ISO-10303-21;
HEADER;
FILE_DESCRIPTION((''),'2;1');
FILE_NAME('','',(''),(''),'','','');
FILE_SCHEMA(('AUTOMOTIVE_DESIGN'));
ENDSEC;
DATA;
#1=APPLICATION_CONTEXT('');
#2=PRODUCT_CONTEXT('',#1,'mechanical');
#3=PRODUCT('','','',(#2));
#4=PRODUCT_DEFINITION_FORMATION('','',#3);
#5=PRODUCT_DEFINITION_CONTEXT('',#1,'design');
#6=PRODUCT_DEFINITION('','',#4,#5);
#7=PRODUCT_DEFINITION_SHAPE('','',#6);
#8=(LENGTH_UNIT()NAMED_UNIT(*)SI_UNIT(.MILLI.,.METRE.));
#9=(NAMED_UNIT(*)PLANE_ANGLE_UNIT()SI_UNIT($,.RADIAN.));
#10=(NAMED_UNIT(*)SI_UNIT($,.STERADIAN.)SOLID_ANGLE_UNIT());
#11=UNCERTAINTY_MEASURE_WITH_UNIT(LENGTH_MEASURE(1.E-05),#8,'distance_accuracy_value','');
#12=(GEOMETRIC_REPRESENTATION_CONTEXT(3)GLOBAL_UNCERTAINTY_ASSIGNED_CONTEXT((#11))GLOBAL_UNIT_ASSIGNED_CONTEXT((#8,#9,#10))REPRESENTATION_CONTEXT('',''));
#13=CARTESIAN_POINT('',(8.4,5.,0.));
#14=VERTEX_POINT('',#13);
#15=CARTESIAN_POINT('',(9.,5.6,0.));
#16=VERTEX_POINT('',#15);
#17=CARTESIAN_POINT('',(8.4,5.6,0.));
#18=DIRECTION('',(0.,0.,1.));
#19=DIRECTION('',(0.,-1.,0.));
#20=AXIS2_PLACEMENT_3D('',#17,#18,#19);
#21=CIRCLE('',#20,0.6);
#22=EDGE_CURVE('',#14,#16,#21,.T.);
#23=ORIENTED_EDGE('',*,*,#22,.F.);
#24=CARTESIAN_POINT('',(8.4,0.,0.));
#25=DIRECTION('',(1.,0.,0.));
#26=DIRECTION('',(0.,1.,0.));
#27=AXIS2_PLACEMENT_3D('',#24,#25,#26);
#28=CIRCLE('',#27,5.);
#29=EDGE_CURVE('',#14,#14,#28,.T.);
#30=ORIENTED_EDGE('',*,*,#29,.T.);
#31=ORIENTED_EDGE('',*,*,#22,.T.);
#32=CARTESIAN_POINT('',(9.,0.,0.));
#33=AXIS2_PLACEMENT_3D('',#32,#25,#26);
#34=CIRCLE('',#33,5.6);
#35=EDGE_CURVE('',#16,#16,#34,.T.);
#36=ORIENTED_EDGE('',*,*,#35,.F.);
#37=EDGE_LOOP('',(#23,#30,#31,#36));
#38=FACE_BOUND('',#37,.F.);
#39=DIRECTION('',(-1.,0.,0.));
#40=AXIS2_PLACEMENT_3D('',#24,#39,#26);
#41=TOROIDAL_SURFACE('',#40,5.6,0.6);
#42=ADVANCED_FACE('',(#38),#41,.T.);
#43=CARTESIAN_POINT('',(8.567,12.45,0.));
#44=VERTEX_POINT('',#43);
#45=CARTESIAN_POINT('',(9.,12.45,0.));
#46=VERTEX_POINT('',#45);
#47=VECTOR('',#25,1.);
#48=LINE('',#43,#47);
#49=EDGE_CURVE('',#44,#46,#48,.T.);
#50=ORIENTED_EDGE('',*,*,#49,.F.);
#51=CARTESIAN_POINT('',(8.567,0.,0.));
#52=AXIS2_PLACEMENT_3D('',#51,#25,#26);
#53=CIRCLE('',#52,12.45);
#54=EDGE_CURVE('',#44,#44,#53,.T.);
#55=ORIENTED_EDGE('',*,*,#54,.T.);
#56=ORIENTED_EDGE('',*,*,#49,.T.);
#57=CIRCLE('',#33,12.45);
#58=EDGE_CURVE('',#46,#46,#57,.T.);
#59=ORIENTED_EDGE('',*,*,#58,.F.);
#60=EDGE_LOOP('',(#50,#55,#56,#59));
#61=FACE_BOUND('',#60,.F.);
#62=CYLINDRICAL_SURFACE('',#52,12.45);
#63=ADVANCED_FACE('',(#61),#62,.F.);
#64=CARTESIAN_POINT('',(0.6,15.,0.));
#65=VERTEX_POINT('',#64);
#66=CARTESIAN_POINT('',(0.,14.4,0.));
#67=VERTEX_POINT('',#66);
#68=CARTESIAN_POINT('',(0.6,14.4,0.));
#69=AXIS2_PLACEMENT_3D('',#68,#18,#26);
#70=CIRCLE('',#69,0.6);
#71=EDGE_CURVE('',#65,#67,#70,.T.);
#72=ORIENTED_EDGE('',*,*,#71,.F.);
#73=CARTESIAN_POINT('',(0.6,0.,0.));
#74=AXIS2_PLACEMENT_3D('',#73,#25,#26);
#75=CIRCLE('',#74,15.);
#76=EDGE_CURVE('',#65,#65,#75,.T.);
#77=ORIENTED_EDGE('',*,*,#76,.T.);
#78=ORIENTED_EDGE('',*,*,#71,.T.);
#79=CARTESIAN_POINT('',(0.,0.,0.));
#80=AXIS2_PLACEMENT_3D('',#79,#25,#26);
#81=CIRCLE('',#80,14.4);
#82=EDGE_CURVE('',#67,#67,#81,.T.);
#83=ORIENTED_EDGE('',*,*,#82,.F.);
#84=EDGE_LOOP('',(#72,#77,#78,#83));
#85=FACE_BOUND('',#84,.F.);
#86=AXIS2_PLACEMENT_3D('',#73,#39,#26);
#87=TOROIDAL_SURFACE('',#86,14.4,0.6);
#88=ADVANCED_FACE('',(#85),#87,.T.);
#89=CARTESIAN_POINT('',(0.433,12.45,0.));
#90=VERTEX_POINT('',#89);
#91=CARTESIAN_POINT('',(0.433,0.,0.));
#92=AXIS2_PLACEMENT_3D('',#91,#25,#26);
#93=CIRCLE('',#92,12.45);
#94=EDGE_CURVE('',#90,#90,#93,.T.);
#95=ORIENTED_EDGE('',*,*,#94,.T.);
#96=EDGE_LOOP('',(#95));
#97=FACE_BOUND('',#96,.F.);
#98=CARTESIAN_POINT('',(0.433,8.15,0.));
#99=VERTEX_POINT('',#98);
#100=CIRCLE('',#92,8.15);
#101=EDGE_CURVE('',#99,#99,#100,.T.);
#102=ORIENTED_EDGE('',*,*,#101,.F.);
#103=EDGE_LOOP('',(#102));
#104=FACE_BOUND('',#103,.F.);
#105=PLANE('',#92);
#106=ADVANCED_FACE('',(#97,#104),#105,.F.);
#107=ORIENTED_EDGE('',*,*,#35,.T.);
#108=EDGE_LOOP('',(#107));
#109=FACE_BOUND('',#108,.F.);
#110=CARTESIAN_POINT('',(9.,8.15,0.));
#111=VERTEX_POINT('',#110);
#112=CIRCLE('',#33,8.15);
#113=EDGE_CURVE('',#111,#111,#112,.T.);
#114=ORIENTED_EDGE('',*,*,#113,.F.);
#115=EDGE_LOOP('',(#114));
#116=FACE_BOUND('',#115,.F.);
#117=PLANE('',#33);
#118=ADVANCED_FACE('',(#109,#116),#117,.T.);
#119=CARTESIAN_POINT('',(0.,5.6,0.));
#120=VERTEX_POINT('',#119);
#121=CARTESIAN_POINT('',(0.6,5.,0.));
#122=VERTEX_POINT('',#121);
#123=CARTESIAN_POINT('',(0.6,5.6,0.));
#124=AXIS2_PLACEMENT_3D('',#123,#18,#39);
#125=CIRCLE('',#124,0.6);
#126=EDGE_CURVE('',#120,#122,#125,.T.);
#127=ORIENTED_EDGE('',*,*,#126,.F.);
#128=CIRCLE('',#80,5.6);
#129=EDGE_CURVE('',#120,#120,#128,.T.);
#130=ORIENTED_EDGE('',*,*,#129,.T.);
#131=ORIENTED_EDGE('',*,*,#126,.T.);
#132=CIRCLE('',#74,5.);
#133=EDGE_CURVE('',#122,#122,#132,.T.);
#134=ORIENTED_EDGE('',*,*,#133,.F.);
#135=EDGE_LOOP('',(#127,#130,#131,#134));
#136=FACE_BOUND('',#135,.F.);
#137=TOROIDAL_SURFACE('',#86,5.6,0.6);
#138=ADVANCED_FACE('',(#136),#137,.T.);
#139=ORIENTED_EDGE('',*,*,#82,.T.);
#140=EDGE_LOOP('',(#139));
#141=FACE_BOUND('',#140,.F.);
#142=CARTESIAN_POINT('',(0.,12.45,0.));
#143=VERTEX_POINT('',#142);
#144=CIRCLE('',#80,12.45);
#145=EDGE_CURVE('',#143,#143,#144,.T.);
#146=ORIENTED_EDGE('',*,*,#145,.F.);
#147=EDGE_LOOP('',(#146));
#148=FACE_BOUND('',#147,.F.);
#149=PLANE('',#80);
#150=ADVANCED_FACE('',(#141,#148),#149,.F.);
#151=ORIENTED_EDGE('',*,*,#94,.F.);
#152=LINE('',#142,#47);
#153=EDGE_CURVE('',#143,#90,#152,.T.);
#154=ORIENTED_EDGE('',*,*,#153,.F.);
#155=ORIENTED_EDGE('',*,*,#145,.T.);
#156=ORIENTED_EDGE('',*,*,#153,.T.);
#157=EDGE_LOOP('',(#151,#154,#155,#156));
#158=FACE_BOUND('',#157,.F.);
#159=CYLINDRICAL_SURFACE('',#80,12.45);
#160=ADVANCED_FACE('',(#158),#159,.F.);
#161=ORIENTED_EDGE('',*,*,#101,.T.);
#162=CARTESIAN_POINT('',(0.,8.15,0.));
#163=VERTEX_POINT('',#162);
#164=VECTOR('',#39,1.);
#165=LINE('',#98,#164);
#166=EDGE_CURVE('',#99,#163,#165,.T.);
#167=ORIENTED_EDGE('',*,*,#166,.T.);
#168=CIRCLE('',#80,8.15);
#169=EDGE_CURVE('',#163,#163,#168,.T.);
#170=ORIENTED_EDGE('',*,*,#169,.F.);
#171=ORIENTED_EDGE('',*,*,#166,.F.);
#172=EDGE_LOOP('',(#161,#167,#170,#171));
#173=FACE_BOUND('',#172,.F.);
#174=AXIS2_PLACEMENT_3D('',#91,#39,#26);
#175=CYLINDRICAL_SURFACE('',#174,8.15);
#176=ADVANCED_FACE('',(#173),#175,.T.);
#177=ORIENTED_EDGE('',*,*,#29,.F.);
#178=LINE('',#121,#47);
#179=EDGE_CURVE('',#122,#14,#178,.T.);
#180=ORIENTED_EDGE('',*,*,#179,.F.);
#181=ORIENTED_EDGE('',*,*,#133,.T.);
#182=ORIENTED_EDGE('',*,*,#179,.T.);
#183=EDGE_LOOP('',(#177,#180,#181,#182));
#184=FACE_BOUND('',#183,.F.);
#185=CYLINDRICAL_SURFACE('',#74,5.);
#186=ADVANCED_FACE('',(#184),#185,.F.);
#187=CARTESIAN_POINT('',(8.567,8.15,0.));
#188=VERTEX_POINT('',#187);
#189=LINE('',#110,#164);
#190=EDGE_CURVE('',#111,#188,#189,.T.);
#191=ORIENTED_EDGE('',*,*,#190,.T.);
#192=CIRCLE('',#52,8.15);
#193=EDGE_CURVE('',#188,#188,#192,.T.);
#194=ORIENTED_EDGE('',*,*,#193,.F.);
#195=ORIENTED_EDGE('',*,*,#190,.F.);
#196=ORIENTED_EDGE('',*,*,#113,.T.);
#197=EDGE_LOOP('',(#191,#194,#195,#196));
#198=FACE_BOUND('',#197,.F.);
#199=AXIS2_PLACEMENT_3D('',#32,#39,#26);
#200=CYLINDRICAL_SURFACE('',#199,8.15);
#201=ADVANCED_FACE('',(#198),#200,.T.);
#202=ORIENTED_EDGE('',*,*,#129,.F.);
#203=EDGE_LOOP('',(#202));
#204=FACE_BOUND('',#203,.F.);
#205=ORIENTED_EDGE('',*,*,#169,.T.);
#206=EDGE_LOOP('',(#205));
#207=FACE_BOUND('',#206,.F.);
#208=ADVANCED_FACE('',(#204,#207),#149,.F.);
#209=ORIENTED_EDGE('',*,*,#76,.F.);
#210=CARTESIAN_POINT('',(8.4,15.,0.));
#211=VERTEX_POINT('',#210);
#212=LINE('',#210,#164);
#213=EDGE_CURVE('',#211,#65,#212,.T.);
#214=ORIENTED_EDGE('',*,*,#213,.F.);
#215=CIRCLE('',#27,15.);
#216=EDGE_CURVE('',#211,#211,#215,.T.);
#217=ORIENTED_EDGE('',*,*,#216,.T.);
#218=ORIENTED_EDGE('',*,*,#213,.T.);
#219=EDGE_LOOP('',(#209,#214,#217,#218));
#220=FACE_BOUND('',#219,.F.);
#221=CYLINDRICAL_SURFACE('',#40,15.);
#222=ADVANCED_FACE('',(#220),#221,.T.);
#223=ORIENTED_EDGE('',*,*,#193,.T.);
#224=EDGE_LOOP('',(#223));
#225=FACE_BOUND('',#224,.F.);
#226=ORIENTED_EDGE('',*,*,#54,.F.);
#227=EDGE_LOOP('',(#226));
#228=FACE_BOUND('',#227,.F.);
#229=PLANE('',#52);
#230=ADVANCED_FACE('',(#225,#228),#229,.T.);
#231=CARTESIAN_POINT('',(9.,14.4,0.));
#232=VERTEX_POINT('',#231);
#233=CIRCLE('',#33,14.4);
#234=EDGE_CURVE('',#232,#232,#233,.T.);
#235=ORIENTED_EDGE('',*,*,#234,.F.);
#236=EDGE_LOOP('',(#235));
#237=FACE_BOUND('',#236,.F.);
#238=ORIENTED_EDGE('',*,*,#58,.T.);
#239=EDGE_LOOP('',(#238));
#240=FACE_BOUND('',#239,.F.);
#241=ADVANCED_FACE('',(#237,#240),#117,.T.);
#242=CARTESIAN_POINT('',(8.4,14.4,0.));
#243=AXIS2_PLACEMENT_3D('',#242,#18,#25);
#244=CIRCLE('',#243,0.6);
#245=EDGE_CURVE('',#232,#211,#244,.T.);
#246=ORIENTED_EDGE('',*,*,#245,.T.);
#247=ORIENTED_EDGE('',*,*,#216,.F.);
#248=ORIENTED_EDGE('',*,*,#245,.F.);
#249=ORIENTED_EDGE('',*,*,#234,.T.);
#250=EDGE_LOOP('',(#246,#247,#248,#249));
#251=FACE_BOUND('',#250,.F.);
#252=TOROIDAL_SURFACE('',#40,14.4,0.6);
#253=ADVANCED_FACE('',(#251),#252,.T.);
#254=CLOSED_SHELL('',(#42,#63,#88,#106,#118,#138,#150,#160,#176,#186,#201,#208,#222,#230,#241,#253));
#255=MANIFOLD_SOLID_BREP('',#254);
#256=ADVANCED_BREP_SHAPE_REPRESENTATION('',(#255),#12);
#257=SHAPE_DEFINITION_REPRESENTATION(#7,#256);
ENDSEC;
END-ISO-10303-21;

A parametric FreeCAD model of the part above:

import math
import FreeCAD as App
import Part
import Sketcher
Q = App.Units.Quantity

doc = App.newDocument("Part")
body = doc.addObject("PartDesign::Body", "Body")

# Sketch on XY plane
sketch1 = doc.addObject("Sketcher::SketchObject", "Sketch")
body.addObject(sketch1)
sketch1.AttachmentSupport = (doc.XY_Plane, [""])
sketch1.MapMode = "FlatFace"
sketch1.addGeometry([
    Part.LineSegment(App.Vector(0, 8.15, 0), App.Vector(0, 5.6, 0)),  # 0
    Part.ArcOfCircle(Part.Circle(App.Vector(0.6, 5.6, 0), App.Vector(0, 0, 1), 0.6), math.radians(180), math.radians(270)),  # 1
    Part.LineSegment(App.Vector(0.6, 5, 0), App.Vector(8.4, 5, 0)),  # 2
    Part.ArcOfCircle(Part.Circle(App.Vector(8.4, 5.6, 0), App.Vector(0, 0, 1), 0.6), math.radians(-90), math.radians(0)),  # 3
    Part.LineSegment(App.Vector(9, 5.6, 0), App.Vector(9, 8.15, 0)),  # 4
    Part.LineSegment(App.Vector(9, 8.15, 0), App.Vector(8.57, 8.15, 0)),  # 5
    Part.LineSegment(App.Vector(8.57, 8.15, 0), App.Vector(8.57, 12.45, 0)),  # 6
    Part.LineSegment(App.Vector(8.57, 12.45, 0), App.Vector(9, 12.45, 0)),  # 7
    Part.LineSegment(App.Vector(9, 12.45, 0), App.Vector(9, 14.4, 0)),  # 8
    Part.ArcOfCircle(Part.Circle(App.Vector(8.4, 14.4, 0), App.Vector(0, 0, 1), 0.6), math.radians(0), math.radians(90)),  # 9
    Part.LineSegment(App.Vector(8.4, 15, 0), App.Vector(0.6, 15, 0)),  # 10
    Part.ArcOfCircle(Part.Circle(App.Vector(0.6, 14.4, 0), App.Vector(0, 0, 1), 0.6), math.radians(90), math.radians(180)),  # 11
    Part.LineSegment(App.Vector(0, 14.4, 0), App.Vector(0, 12.45, 0)),  # 12
    Part.LineSegment(App.Vector(0, 12.45, 0), App.Vector(0.43, 12.45, 0)),  # 13
    Part.LineSegment(App.Vector(0.43, 12.45, 0), App.Vector(0.43, 8.15, 0)),  # 14
    Part.LineSegment(App.Vector(0.43, 8.15, 0), App.Vector(0, 8.15, 0)),  # 15
], False)
sketch1.addConstraint([
    Sketcher.Constraint("Tangent", 0, 2, 1, 1),
    Sketcher.Constraint("Tangent", 1, 2, 2, 1),
    Sketcher.Constraint("Tangent", 2, 2, 3, 1),
    Sketcher.Constraint("Tangent", 3, 2, 4, 1),
    Sketcher.Constraint("Coincident", 4, 2, 5, 1),
    Sketcher.Constraint("Coincident", 5, 2, 6, 1),
    Sketcher.Constraint("Coincident", 6, 2, 7, 1),
    Sketcher.Constraint("Coincident", 7, 2, 8, 1),
    Sketcher.Constraint("Tangent", 8, 2, 9, 1),
    Sketcher.Constraint("Tangent", 9, 2, 10, 1),
    Sketcher.Constraint("Tangent", 10, 2, 11, 1),
    Sketcher.Constraint("Tangent", 11, 2, 12, 1),
    Sketcher.Constraint("Coincident", 12, 2, 13, 1),
    Sketcher.Constraint("Coincident", 13, 2, 14, 1),
    Sketcher.Constraint("Coincident", 14, 2, 15, 1),
    Sketcher.Constraint("Coincident", 15, 2, 0, 1),
    Sketcher.Constraint("Vertical", 0),
    Sketcher.Constraint("Horizontal", 2),
    Sketcher.Constraint("Vertical", 4),
    Sketcher.Constraint("Horizontal", 5),
    Sketcher.Constraint("Vertical", 6),
    Sketcher.Constraint("Horizontal", 7),
    Sketcher.Constraint("Vertical", 8),
    Sketcher.Constraint("Horizontal", 10),
    Sketcher.Constraint("Vertical", 12),
    Sketcher.Constraint("Horizontal", 13),
    Sketcher.Constraint("Vertical", 14),
    Sketcher.Constraint("Horizontal", 15),
    Sketcher.Constraint("Equal", 1, 3),
    Sketcher.Constraint("Equal", 3, 9),
    Sketcher.Constraint("Equal", 9, 11),
    Sketcher.Constraint("PointOnObject", 0, 2, -2),
    Sketcher.Constraint("PointOnObject", 11, 2, -2),
    Sketcher.Constraint("Horizontal", 7, 2, 12, 2),
    Sketcher.Constraint("Horizontal", 5, 2, 14, 2),
    Sketcher.Constraint("Vertical", 3, 3, 9, 3),
    Sketcher.Constraint("Equal", 7, 13),
    Sketcher.Constraint("Radius", 1, Q("0.6 mm")),
    Sketcher.Constraint("DistanceX", 2, 1, 2, 2, Q("7.8 mm")),
    Sketcher.Constraint("DistanceY", 6, 1, 6, 2, Q("4.3 mm")),
    Sketcher.Constraint("DistanceY", -1, 1, 1, 2, Q("5 mm")),
    Sketcher.Constraint("DistanceY", -1, 1, 9, 2, Q("15 mm")),
    Sketcher.Constraint("DistanceY", 0, 2, 0, 1, Q("2.55 mm")),
    Sketcher.Constraint("DistanceX", 5, 2, 5, 1, Q("0.433 mm")),
])
revolution = doc.addObject("PartDesign::Revolution", "Revolution")
body.addObject(revolution)
revolution.Profile = sketch1
revolution.ReferenceAxis = (sketch1, ["H_Axis"])
revolution.Angle = 360

doc.recompute()
